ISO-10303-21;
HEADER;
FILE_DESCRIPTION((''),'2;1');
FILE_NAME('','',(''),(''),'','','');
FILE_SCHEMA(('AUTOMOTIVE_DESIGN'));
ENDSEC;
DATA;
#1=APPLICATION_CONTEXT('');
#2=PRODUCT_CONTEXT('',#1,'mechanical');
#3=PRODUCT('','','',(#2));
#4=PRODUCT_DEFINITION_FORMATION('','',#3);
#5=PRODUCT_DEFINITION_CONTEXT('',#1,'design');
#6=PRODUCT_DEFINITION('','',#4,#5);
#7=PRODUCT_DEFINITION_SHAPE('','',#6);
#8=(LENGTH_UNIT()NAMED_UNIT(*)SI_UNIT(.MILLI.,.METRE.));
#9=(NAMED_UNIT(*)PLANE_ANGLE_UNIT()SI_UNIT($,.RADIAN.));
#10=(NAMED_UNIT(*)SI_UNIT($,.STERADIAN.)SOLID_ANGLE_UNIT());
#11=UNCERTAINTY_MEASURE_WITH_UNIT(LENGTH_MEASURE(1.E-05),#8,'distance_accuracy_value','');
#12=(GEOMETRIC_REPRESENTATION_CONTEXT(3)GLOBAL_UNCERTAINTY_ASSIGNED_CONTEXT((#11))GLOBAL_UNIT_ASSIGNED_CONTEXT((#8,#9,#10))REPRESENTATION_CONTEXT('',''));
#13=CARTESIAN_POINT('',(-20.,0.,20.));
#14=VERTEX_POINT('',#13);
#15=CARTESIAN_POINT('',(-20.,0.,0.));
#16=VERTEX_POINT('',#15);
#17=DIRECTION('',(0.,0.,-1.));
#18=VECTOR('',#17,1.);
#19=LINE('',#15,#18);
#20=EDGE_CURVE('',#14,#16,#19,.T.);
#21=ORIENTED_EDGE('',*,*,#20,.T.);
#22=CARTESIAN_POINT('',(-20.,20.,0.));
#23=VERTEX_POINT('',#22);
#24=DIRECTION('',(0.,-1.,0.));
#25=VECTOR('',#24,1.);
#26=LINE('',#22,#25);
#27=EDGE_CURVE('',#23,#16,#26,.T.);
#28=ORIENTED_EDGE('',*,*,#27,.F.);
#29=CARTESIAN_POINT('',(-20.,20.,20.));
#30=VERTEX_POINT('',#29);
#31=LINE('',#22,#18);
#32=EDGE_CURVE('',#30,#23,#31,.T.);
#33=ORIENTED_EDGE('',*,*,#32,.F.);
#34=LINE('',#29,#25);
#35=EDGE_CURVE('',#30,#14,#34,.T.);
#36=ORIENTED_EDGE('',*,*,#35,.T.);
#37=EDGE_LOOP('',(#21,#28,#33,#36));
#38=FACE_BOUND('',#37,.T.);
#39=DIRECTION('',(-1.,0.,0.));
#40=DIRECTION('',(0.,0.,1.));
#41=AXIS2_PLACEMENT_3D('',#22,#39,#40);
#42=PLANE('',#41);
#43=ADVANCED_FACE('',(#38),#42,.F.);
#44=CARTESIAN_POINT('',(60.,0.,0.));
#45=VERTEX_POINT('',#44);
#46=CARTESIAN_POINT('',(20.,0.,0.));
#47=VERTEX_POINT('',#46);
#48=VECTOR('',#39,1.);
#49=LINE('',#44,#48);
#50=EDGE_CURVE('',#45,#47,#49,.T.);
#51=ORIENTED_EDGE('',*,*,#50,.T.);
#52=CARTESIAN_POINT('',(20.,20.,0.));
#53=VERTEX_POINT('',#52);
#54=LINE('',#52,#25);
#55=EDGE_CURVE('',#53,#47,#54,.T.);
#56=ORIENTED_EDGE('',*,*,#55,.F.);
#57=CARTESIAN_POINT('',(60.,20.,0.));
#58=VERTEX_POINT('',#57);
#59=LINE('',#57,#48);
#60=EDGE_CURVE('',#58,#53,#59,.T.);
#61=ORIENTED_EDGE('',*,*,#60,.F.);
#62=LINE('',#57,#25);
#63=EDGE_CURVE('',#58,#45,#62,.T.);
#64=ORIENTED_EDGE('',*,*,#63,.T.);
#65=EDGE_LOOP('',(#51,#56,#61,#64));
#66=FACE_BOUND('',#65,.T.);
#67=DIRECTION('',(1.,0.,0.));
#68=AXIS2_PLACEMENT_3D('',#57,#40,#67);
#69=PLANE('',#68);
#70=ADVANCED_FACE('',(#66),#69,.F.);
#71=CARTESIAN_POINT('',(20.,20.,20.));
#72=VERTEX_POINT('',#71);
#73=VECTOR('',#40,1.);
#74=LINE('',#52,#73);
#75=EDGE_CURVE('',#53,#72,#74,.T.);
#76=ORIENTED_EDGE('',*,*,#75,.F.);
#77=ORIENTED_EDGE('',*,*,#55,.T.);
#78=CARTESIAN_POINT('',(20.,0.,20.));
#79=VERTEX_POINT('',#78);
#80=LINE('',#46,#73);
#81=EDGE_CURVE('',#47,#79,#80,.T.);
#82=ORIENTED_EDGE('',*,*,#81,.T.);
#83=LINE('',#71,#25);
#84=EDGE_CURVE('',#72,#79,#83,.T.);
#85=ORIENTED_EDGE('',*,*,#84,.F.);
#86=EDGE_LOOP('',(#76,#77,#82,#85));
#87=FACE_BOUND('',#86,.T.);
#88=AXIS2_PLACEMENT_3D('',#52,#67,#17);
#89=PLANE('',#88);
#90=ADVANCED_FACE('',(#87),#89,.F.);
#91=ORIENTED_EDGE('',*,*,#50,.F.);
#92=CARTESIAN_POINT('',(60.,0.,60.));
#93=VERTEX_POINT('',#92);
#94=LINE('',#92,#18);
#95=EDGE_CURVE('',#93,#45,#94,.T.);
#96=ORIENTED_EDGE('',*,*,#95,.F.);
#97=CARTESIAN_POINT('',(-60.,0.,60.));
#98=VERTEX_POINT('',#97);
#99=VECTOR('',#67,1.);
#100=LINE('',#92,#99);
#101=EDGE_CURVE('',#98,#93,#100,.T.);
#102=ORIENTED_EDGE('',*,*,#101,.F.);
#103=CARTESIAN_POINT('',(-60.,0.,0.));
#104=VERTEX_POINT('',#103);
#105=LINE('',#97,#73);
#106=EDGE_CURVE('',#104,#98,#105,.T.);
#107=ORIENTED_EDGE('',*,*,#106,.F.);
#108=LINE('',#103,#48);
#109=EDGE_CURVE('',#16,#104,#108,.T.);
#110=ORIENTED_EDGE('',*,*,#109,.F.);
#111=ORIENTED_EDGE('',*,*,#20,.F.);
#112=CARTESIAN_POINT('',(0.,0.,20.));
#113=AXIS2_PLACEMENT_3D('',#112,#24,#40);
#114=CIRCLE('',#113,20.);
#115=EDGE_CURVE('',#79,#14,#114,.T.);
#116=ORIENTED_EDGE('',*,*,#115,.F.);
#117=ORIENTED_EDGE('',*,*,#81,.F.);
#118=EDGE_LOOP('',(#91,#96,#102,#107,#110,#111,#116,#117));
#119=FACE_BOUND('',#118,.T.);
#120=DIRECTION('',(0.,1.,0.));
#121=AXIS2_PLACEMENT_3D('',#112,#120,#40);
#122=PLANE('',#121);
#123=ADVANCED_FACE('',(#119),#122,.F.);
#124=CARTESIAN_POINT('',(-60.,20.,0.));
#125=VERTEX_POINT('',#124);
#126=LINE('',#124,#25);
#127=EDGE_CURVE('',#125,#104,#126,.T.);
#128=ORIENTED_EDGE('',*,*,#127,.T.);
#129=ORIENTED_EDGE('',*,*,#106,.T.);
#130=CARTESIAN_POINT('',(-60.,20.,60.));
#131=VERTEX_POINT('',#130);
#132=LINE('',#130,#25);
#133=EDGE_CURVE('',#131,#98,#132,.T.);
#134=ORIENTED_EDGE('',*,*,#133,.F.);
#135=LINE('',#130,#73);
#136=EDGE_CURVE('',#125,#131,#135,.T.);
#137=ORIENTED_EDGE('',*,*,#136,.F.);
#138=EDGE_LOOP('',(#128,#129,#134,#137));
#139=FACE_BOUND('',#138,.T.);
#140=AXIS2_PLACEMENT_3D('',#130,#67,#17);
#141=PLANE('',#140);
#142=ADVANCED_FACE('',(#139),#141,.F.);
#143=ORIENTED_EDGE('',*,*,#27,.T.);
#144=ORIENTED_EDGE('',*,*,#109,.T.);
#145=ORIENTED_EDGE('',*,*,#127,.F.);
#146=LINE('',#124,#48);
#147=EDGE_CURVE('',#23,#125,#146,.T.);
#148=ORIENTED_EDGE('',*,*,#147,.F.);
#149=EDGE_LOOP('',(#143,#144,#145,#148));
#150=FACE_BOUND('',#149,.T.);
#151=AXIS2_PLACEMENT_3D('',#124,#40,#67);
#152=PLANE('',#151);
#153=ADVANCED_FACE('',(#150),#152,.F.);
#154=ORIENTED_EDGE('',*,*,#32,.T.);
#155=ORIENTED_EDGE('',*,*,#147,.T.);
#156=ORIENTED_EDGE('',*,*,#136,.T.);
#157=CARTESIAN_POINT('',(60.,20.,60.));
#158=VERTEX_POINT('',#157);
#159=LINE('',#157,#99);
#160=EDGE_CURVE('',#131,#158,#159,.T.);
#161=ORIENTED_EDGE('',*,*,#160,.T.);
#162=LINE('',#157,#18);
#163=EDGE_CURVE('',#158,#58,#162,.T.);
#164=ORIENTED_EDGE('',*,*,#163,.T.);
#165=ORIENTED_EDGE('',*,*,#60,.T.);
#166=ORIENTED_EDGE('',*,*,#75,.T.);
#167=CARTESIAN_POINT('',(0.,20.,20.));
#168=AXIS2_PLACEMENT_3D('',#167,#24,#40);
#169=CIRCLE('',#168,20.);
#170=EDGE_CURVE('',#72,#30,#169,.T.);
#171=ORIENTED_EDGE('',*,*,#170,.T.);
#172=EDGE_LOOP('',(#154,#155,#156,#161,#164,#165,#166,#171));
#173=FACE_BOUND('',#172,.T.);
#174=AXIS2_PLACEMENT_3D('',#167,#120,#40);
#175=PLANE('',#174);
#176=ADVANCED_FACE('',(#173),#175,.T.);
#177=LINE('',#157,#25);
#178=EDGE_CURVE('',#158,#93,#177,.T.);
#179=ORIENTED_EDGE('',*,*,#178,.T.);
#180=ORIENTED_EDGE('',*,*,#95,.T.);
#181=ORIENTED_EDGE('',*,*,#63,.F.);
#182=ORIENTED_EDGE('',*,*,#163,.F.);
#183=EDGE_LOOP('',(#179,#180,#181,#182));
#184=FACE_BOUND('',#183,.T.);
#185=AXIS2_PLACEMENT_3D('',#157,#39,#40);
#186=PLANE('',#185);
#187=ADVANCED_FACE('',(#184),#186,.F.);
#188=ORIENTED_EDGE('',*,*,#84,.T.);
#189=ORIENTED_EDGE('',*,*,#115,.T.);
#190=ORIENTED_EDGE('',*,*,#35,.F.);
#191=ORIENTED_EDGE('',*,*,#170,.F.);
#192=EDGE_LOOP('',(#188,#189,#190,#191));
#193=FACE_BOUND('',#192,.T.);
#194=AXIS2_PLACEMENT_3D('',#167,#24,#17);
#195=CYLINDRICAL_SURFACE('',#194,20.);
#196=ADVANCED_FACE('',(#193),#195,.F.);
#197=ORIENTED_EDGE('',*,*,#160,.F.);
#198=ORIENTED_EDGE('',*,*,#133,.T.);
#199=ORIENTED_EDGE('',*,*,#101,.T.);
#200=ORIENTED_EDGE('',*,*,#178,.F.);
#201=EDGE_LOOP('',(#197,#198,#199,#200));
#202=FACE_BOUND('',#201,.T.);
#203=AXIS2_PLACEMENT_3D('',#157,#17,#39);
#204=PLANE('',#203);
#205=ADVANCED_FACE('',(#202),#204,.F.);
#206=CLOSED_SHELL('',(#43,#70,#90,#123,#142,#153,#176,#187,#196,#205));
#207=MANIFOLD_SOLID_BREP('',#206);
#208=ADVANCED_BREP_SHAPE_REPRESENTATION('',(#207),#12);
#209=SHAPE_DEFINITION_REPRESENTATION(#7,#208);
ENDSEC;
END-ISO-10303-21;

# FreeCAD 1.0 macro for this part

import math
import FreeCAD as App
import Part
import Sketcher

V = App.Vector

doc = App.newDocument("Part")
body = doc.addObject("PartDesign::Body", "Body")

sketch1 = body.newObject("Sketcher::SketchObject", "Sketch")
sketch1.AttachmentSupport = (doc.getObject("XZ_Plane"), [""])
sketch1.MapMode = "FlatFace"
sketch1.addGeometry([
    Part.LineSegment(V(-20, 20, 0), V(-20, 0, 0)),
    Part.LineSegment(V(-20, 0, 0), V(-60, 0, 0)),
    Part.LineSegment(V(-60, 0, 0), V(-60, 60, 0)),
    Part.LineSegment(V(-60, 60, 0), V(60, 60, 0)),
    Part.LineSegment(V(60, 60, 0), V(60, 0, 0)),
    Part.LineSegment(V(60, 0, 0), V(20, 0, 0)),
    Part.LineSegment(V(20, 0, 0), V(20, 20, 0)),
    Part.ArcOfCircle(Part.Circle(V(0, 20, 0), V(0, 0, 1), 20), math.radians(0), math.radians(180)),
], False)
sketch1.addConstraint([
    Sketcher.Constraint("Coincident", 0, 2, 1, 1),
    Sketcher.Constraint("Coincident", 1, 2, 2, 1),
    Sketcher.Constraint("Coincident", 2, 2, 3, 1),
    Sketcher.Constraint("Coincident", 3, 2, 4, 1),
    Sketcher.Constraint("Coincident", 4, 2, 5, 1),
    Sketcher.Constraint("Coincident", 5, 2, 6, 1),
    Sketcher.Constraint("Tangent", 6, 2, 7, 1),
    Sketcher.Constraint("Tangent", 7, 2, 0, 1),
    Sketcher.Constraint("Vertical", 0),
    Sketcher.Constraint("Horizontal", 1),
    Sketcher.Constraint("Vertical", 2),
    Sketcher.Constraint("Horizontal", 3),
    Sketcher.Constraint("Vertical", 4),
    Sketcher.Constraint("Horizontal", 5),
    Sketcher.Constraint("Vertical", 6),
    Sketcher.Constraint("Symmetric", 1, 2, 4, 2, -1, 1),
    Sketcher.Constraint("Symmetric", 0, 2, 5, 2, -2),
    Sketcher.Constraint("Radius", 7, 20.0),
    Sketcher.Constraint("DistanceX", 1, 2, 1, 1, 40.0),
    Sketcher.Constraint("DistanceY", 0, 2, 0, 1, 20.0),
    Sketcher.Constraint("DistanceY", 2, 1, 2, 2, 60.0),
])
pad1 = body.newObject("PartDesign::Pad", "Pad")
pad1.Profile = sketch1
pad1.Length = 20
pad1.Reversed = True

doc.recompute()
